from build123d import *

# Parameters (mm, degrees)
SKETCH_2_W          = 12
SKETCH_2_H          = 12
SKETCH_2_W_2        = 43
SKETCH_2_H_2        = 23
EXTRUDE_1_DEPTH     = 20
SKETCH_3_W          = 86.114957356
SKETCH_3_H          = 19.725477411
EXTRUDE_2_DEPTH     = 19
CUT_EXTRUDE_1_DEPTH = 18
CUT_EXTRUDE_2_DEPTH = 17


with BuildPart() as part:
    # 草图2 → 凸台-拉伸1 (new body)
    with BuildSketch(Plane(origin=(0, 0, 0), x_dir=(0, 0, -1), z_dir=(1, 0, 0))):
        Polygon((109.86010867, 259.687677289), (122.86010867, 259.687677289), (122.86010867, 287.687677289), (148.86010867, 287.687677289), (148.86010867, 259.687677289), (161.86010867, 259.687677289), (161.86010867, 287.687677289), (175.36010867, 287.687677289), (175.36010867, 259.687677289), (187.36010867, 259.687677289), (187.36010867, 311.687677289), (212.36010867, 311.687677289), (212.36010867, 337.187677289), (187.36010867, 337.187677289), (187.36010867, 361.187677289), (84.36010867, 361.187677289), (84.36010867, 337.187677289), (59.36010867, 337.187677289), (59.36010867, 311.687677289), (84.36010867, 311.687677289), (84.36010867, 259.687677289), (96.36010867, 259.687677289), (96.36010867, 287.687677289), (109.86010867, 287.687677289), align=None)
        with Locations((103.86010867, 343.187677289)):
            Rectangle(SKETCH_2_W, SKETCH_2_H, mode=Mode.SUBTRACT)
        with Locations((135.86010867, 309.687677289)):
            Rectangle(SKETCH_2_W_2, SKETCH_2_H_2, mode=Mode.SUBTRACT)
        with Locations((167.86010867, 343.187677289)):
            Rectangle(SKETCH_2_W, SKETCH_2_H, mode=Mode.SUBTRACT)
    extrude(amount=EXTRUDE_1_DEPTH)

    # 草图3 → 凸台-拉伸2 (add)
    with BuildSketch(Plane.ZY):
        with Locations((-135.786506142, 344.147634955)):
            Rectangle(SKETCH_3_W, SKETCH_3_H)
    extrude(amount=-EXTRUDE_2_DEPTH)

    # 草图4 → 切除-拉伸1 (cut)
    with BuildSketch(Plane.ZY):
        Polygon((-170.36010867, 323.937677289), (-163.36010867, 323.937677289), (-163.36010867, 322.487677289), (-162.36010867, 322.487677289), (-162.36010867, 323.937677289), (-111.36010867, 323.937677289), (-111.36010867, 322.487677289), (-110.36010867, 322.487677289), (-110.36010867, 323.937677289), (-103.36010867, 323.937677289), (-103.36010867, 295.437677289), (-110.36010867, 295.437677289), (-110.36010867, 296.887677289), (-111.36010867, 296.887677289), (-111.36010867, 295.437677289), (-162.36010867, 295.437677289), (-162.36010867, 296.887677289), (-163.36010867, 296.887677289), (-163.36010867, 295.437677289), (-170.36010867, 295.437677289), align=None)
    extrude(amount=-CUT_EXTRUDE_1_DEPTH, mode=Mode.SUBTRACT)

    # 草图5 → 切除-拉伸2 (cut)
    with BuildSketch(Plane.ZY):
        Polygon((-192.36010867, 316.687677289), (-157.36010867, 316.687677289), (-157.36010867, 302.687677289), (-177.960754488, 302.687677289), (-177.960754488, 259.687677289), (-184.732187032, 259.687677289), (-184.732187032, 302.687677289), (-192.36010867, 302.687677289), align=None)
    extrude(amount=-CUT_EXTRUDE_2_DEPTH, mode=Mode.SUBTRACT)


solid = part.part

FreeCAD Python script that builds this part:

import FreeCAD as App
import Part
import Sketcher
Q = App.Units.Quantity


def add_polygon(sketch, points):
    """Adds a closed chain of lines whose ends are joined by coincident constraints."""
    first, n = sketch.GeometryCount, len(points)
    for a, b in zip(points, points[1:] + points[:1]):
        sketch.addGeometry(Part.LineSegment(App.Vector(*a, 0), App.Vector(*b, 0)), False)
    for i in range(n):
        sketch.addConstraint(Sketcher.Constraint("Coincident", first + i, 2, first + (i + 1) % n, 1))

doc = App.newDocument("Part")
body = doc.addObject("PartDesign::Body", "Body")

sketch1 = body.newObject("Sketcher::SketchObject", "Sketch")
sketch1.AttachmentSupport = (doc.getObject("YZ_Plane"), [""])
sketch1.MapMode = "FlatFace"
add_polygon(sketch1, [(259.687677, -109.860109), (259.687677, -122.860109), (287.687677, -122.860109), (287.687677, -148.860109), (259.687677, -148.860109), (259.687677, -161.860109), (287.687677, -161.860109), (287.687677, -175.360109), (259.687677, -175.360109), (259.687677, -187.360109), (311.687677, -187.360109), (311.687677, -212.360109), (337.187677, -212.360109), (337.187677, -187.360109), (361.187677, -187.360109), (361.187677, -84.360109), (337.187677, -84.360109), (337.187677, -59.360109), (311.687677, -59.360109), (311.687677, -84.360109), (259.687677, -84.360109), (259.687677, -96.360109), (287.687677, -96.360109), (287.687677, -109.860109)])
add_polygon(sketch1, [(298.187677, -157.360109), (298.187677, -114.360109), (321.187677, -114.360109), (321.187677, -157.360109)])
add_polygon(sketch1, [(337.187677, -109.860109), (337.187677, -97.860109), (349.187677, -97.860109), (349.187677, -109.860109)])
add_polygon(sketch1, [(337.187677, -173.860109), (337.187677, -161.860109), (349.187677, -161.860109), (349.187677, -173.860109)])
sketch1.addConstraint([
    Sketcher.Constraint("Vertical", 0),
    Sketcher.Constraint("Horizontal", 1),
    Sketcher.Constraint("Vertical", 2),
    Sketcher.Constraint("Horizontal", 3),
    Sketcher.Constraint("Vertical", 4),
    Sketcher.Constraint("Horizontal", 5),
    Sketcher.Constraint("Vertical", 6),
    Sketcher.Constraint("Horizontal", 7),
    Sketcher.Constraint("Vertical", 8),
    Sketcher.Constraint("Horizontal", 9),
    Sketcher.Constraint("Vertical", 10),
    Sketcher.Constraint("Horizontal", 11),
    Sketcher.Constraint("Vertical", 12),
    Sketcher.Constraint("Horizontal", 13),
    Sketcher.Constraint("Vertical", 14),
    Sketcher.Constraint("Horizontal", 15),
    Sketcher.Constraint("Vertical", 16),
    Sketcher.Constraint("Horizontal", 17),
    Sketcher.Constraint("Vertical", 18),
    Sketcher.Constraint("Horizontal", 19),
    Sketcher.Constraint("Vertical", 20),
    Sketcher.Constraint("Horizontal", 21),
    Sketcher.Constraint("Vertical", 22),
    Sketcher.Constraint("Horizontal", 23),
    Sketcher.Constraint("Vertical", 24),
    Sketcher.Constraint("Horizontal", 25),
    Sketcher.Constraint("Vertical", 26),
    Sketcher.Constraint("Horizontal", 27),
    Sketcher.Constraint("Vertical", 28),
    Sketcher.Constraint("Horizontal", 29),
    Sketcher.Constraint("Vertical", 30),
    Sketcher.Constraint("Horizontal", 31),
    Sketcher.Constraint("Vertical", 32),
    Sketcher.Constraint("Horizontal", 33),
    Sketcher.Constraint("Vertical", 34),
    Sketcher.Constraint("Horizontal", 35),
    Sketcher.Constraint("Horizontal", 9, 2, 12, 2),
    Sketcher.Constraint("Horizontal", 15, 2, 18, 2),
    Sketcher.Constraint("Horizontal", 23, 2, 30, 2),
    Sketcher.Constraint("Horizontal", 5, 2, 32, 2),
    Sketcher.Constraint("Vertical", 0, 2, 3, 2),
    Sketcher.Constraint("Vertical", 2, 2, 5, 2),
    Sketcher.Constraint("Vertical", 4, 2, 7, 2),
    Sketcher.Constraint("Vertical", 12, 2, 15, 2),
    Sketcher.Constraint("Vertical", 10, 2, 17, 2),
    Sketcher.Constraint("Vertical", 8, 2, 19, 2),
    Sketcher.Constraint("Vertical", 6, 2, 21, 2),
    Sketcher.Constraint("Vertical", 16, 2, 28, 2),
    Sketcher.Constraint("Vertical", 31, 2, 32, 2),
    Sketcher.Constraint("Vertical", 30, 2, 33, 2),
    Sketcher.Constraint("Equal", 0, 4),
    Sketcher.Constraint("Equal", 35, 8),
    Sketcher.Constraint("Equal", 12, 16),
    Sketcher.Constraint("Equal", 8, 20),
    Sketcher.Constraint("Equal", 6, 22),
    Sketcher.Constraint("Equal", 20, 28),
    Sketcher.Constraint("Equal", 30, 32),
    Sketcher.Constraint("DistanceX", 1, 1, 1, 2, Q("28 mm")),
    Sketcher.Constraint("DistanceX", 9, 1, 9, 2, Q("52 mm")),
    Sketcher.Constraint("DistanceX", 13, 1, 13, 2, Q("24 mm")),
    Sketcher.Constraint("DistanceX", 25, 1, 25, 2, Q("23 mm")),
    Sketcher.Constraint("DistanceX", 29, 1, 29, 2, Q("12 mm")),
    Sketcher.Constraint("DistanceY", 0, 2, 0, 1, Q("13 mm")),
    Sketcher.Constraint("DistanceY", 2, 2, 2, 1, Q("26 mm")),
    Sketcher.Constraint("DistanceY", 10, 2, 10, 1, Q("25 mm")),
    Sketcher.Constraint("DistanceY", 14, 1, 14, 2, Q("103 mm")),
    Sketcher.Constraint("DistanceY", 24, 1, 24, 2, Q("43 mm")),
    Sketcher.Constraint("DistanceX", 11, 1, 11, 2, Q("25.5 mm")),
    Sketcher.Constraint("DistanceY", 24, 2, 21, 2, Q("18 mm")),
    Sketcher.Constraint("DistanceX", 25, 2, 15, 2, Q("16 mm")),
    Sketcher.Constraint("DistanceY", 0, 2, -1, 1, Q("122.860109 mm")),
    Sketcher.Constraint("DistanceX", -1, 1, 0, 2, Q("259.687677 mm")),
])
pad1 = body.newObject("PartDesign::Pad", "Pad")
pad1.Profile = sketch1
pad1.Length = 20

sketch2 = body.newObject("Sketcher::SketchObject", "Sketch001")
sketch2.AttachmentSupport = (doc.getObject("YZ_Plane"), [""])
sketch2.MapMode = "FlatFace"
add_polygon(sketch2, [(354.010374, -178.843985), (334.284896, -178.843985), (334.284896, -92.729027), (354.010374, -92.729027)])
sketch2.addConstraint([
    Sketcher.Constraint("Horizontal", 0),
    Sketcher.Constraint("Vertical", 1),
    Sketcher.Constraint("Horizontal", 2),
    Sketcher.Constraint("Vertical", 3),
    Sketcher.Constraint("DistanceX", 0, 2, 0, 1, Q("19.725477 mm")),
    Sketcher.Constraint("DistanceY", 1, 1, 1, 2, Q("86.114957 mm")),
    Sketcher.Constraint("DistanceX", -1, 1, 0, 2, Q("334.284896 mm")),
    Sketcher.Constraint("DistanceY", 0, 2, -1, 1, Q("178.843985 mm")),
])
pad2 = body.newObject("PartDesign::Pad", "Pad001")
pad2.Profile = sketch2
pad2.Length = 19

sketch3 = body.newObject("Sketcher::SketchObject", "Sketch002")
sketch3.AttachmentSupport = (doc.getObject("YZ_Plane"), [""])
sketch3.MapMode = "FlatFace"
add_polygon(sketch3, [(323.937677, -163.360109), (323.937677, -170.360109), (295.437677, -170.360109), (295.437677, -163.360109), (296.887677, -163.360109), (296.887677, -162.360109), (295.437677, -162.360109), (295.437677, -111.360109), (296.887677, -111.360109), (296.887677, -110.360109), (295.437677, -110.360109), (295.437677, -103.360109), (323.937677, -103.360109), (323.937677, -110.360109), (322.487677, -110.360109), (322.487677, -111.360109), (323.937677, -111.360109), (323.937677, -162.360109), (322.487677, -162.360109), (322.487677, -163.360109)])
sketch3.addConstraint([
    Sketcher.Constraint("Vertical", 0),
    Sketcher.Constraint("Horizontal", 1),
    Sketcher.Constraint("Vertical", 2),
    Sketcher.Constraint("Horizontal", 3),
    Sketcher.Constraint("Vertical", 4),
    Sketcher.Constraint("Horizontal", 5),
    Sketcher.Constraint("Vertical", 6),
    Sketcher.Constraint("Horizontal", 7),
    Sketcher.Constraint("Vertical", 8),
    Sketcher.Constraint("Horizontal", 9),
    Sketcher.Constraint("Vertical", 10),
    Sketcher.Constraint("Horizontal", 11),
    Sketcher.Constraint("Vertical", 12),
    Sketcher.Constraint("Horizontal", 13),
    Sketcher.Constraint("Vertical", 14),
    Sketcher.Constraint("Horizontal", 15),
    Sketcher.Constraint("Vertical", 16),
    Sketcher.Constraint("Horizontal", 17),
    Sketcher.Constraint("Vertical", 18),
    Sketcher.Constraint("Horizontal", 19),
    Sketcher.Constraint("Horizontal", 9, 2, 12, 2),
    Sketcher.Constraint("Horizontal", 7, 2, 14, 2),
    Sketcher.Constraint("Horizontal", 5, 2, 16, 2),
    Sketcher.Constraint("Horizontal", 3, 2, 18, 2),
    Sketcher.Constraint("Vertical", 2, 2, 5, 2),
    Sketcher.Constraint("Vertical", 4, 2, 7, 2),
    Sketcher.Constraint("Vertical", 6, 2, 9, 2),
    Sketcher.Constraint("Vertical", 0, 2, 11, 2),
    Sketcher.Constraint("Vertical", 12, 2, 15, 2),
    Sketcher.Constraint("Vertical", 14, 2, 17, 2),
    Sketcher.Constraint("Equal", 9, 13),
    Sketcher.Constraint("Equal", 4, 8),
    Sketcher.Constraint("Equal", 2, 10),
    Sketcher.Constraint("DistanceY", 0, 2, 0, 1, Q("7 mm")),
    Sketcher.Constraint("DistanceY", 4, 1, 4, 2, Q("1 mm")),
    Sketcher.Constraint("DistanceY", 6, 1, 6, 2, Q("51 mm")),
    Sketcher.Constraint("DistanceX", 1, 2, 1, 1, Q("28.5 mm")),
    Sketcher.Constraint("DistanceX", 3, 1, 3, 2, Q("1.45 mm")),
    Sketcher.Constraint("DistanceY", 0, 2, -1, 1, Q("170.360109 mm")),
    Sketcher.Constraint("DistanceX", -1, 1, 0, 2, Q("323.937677 mm")),
])
pocket1 = body.newObject("PartDesign::Pocket", "Pocket")
pocket1.Profile = sketch3
pocket1.Length = 18
pocket1.Reversed = True

sketch4 = body.newObject("Sketcher::SketchObject", "Sketch003")
sketch4.AttachmentSupport = (doc.getObject("YZ_Plane"), [""])
sketch4.MapMode = "FlatFace"
add_polygon(sketch4, [(316.687677, -157.360109), (316.687677, -192.360109), (302.687677, -192.360109), (302.687677, -184.732187), (259.687677, -184.732187), (259.687677, -177.960754), (302.687677, -177.960754), (302.687677, -157.360109)])
sketch4.addConstraint([
    Sketcher.Constraint("Vertical", 0),
    Sketcher.Constraint("Horizontal", 1),
    Sketcher.Constraint("Vertical", 2),
    Sketcher.Constraint("Horizontal", 3),
    Sketcher.Constraint("Vertical", 4),
    Sketcher.Constraint("Horizontal", 5),
    Sketcher.Constraint("Vertical", 6),
    Sketcher.Constraint("Horizontal", 7),
    Sketcher.Constraint("Vertical", 2, 2, 5, 2),
    Sketcher.Constraint("DistanceX", 1, 2, 1, 1, Q("14 mm")),
    Sketcher.Constraint("DistanceX", 3, 2, 3, 1, Q("43 mm")),
    Sketcher.Constraint("DistanceY", 0, 2, 0, 1, Q("35 mm")),
    Sketcher.Constraint("DistanceY", 2, 1, 2, 2, Q("7.627922 mm")),
    Sketcher.Constraint("DistanceY", 4, 1, 4, 2, Q("6.771433 mm")),
    Sketcher.Constraint("DistanceY", 0, 2, -1, 1, Q("192.360109 mm")),
    Sketcher.Constraint("DistanceX", -1, 1, 0, 2, Q("316.687677 mm")),
])
pocket2 = body.newObject("PartDesign::Pocket", "Pocket001")
pocket2.Profile = sketch4
pocket2.Length = 17
pocket2.Reversed = True

doc.recompute()
